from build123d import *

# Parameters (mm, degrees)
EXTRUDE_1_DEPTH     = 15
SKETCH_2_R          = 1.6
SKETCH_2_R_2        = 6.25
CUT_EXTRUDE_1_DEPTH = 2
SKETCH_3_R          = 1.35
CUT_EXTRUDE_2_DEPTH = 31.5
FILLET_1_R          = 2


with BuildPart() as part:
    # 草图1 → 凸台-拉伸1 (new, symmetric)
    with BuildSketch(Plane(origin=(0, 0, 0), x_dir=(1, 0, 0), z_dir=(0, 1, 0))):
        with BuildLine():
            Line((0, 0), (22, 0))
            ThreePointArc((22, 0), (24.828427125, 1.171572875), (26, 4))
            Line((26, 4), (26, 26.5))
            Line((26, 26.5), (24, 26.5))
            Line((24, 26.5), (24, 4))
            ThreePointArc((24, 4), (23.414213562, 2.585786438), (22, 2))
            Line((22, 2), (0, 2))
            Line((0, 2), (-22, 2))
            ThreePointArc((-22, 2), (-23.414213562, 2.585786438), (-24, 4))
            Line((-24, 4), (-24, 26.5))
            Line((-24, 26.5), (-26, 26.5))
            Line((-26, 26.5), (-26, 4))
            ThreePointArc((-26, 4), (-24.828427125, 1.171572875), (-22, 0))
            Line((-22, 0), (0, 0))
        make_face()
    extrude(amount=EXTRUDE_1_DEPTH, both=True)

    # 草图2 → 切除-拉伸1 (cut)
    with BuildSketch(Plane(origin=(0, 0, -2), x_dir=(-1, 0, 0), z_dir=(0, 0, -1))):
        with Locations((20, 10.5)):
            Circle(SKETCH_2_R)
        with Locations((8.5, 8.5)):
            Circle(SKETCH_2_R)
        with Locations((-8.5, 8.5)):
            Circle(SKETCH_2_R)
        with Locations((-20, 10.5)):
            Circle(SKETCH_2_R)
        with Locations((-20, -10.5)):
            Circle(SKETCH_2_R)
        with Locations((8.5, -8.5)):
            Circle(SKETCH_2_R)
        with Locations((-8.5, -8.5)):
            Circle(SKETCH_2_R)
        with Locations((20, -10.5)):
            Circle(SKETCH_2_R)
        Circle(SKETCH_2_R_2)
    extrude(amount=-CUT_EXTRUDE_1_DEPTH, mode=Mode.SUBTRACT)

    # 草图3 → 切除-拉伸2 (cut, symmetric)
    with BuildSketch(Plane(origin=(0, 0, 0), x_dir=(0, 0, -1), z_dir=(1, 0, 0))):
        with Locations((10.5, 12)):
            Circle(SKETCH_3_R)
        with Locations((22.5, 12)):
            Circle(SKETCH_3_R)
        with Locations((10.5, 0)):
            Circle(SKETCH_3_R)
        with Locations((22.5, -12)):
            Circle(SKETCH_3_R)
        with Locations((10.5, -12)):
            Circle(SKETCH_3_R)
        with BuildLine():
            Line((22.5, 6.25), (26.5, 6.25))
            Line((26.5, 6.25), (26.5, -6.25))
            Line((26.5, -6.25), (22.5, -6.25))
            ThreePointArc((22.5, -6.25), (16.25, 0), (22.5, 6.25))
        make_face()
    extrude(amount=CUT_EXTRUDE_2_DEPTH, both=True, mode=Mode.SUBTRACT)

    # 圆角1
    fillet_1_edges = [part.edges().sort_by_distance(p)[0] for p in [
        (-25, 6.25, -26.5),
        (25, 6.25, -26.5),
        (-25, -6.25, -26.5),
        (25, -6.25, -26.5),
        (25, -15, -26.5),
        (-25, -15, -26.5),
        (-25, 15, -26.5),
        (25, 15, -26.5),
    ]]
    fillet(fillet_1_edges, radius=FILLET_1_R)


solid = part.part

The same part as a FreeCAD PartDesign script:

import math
import FreeCAD as App
import Part
import Sketcher
from FreeCAD import Vector
Q = App.Units.Quantity


def edges_at(feature, points):
    """Names of the edges that pass closest to the given points."""
    edges = feature.Shape.Edges
    near = lambda p: min(range(len(edges)), key=lambda i: edges[i].distToShape(Part.Vertex(*p))[0])
    return sorted({f"Edge{near(p) + 1}" for p in points})

doc = App.newDocument("Part")
body = doc.addObject("PartDesign::Body", "Body")

# Sketch on XZ plane
sketch1 = doc.addObject("Sketcher::SketchObject", "Sketch")
body.addObject(sketch1)
sketch1.AttachmentSupport = (doc.XZ_Plane, [""])
sketch1.MapMode = "FlatFace"
sketch1.addGeometry(Part.ArcOfCircle(Part.Circle(Vector(22, -4, 0), Vector(0, 0, 1), 4), math.radians(0), math.radians(90)), False)
sketch1.addGeometry(Part.LineSegment(Vector(26, -4, 0), Vector(26, -26.5, 0)), False)
sketch1.addGeometry(Part.LineSegment(Vector(26, -26.5, 0), Vector(24, -26.5, 0)), False)
sketch1.addGeometry(Part.LineSegment(Vector(24, -26.5, 0), Vector(24, -4, 0)), False)
sketch1.addGeometry(Part.ArcOfCircle(Part.Circle(Vector(22, -4, 0), Vector(0, 0, 1), 2), math.radians(0), math.radians(90)), False)
sketch1.addGeometry(Part.LineSegment(Vector(22, -2, 0), Vector(-22, -2, 0)), False)
sketch1.addGeometry(Part.ArcOfCircle(Part.Circle(Vector(-22, -4, 0), Vector(0, 0, 1), 2), math.radians(90), math.radians(180)), False)
sketch1.addGeometry(Part.LineSegment(Vector(-24, -4, 0), Vector(-24, -26.5, 0)), False)
sketch1.addGeometry(Part.LineSegment(Vector(-24, -26.5, 0), Vector(-26, -26.5, 0)), False)
sketch1.addGeometry(Part.LineSegment(Vector(-26, -26.5, 0), Vector(-26, -4, 0)), False)
sketch1.addGeometry(Part.ArcOfCircle(Part.Circle(Vector(-22, -4, 0), Vector(0, 0, 1), 4), math.radians(90), math.radians(180)), False)
sketch1.addGeometry(Part.LineSegment(Vector(-22, 0, 0), Vector(22, 0, 0)), False)
sketch1.addConstraint(Sketcher.Constraint("Tangent", 0, 1, 1, 1))
sketch1.addConstraint(Sketcher.Constraint("Coincident", 1, 2, 2, 1))
sketch1.addConstraint(Sketcher.Constraint("Coincident", 2, 2, 3, 1))
sketch1.addConstraint(Sketcher.Constraint("Tangent", 3, 2, 4, 1))
sketch1.addConstraint(Sketcher.Constraint("Tangent", 4, 2, 5, 1))
sketch1.addConstraint(Sketcher.Constraint("Tangent", 5, 2, 6, 1))
sketch1.addConstraint(Sketcher.Constraint("Tangent", 6, 2, 7, 1))
sketch1.addConstraint(Sketcher.Constraint("Coincident", 7, 2, 8, 1))
sketch1.addConstraint(Sketcher.Constraint("Coincident", 8, 2, 9, 1))
sketch1.addConstraint(Sketcher.Constraint("Tangent", 9, 2, 10, 2))
sketch1.addConstraint(Sketcher.Constraint("Tangent", 10, 1, 11, 1))
sketch1.addConstraint(Sketcher.Constraint("Tangent", 11, 2, 0, 2))
sketch1.addConstraint(Sketcher.Constraint("Vertical", 1))
sketch1.addConstraint(Sketcher.Constraint("Horizontal", 2))
sketch1.addConstraint(Sketcher.Constraint("Vertical", 3))
sketch1.addConstraint(Sketcher.Constraint("Horizontal", 5))
sketch1.addConstraint(Sketcher.Constraint("Vertical", 7))
sketch1.addConstraint(Sketcher.Constraint("Horizontal", 8))
sketch1.addConstraint(Sketcher.Constraint("Vertical", 9))
sketch1.addConstraint(Sketcher.Constraint("Horizontal", 11))
sketch1.addConstraint(Sketcher.Constraint("Coincident", 4, 3, 0, 3))
sketch1.addConstraint(Sketcher.Constraint("Coincident", 10, 3, 6, 3))
sketch1.addConstraint(Sketcher.Constraint("Equal", 4, 6))
sketch1.addConstraint(Sketcher.Constraint("Symmetric", 10, 1, 11, 2, -1, 1))
sketch1.addConstraint(Sketcher.Constraint("Horizontal", 2, 2, 7, 2))
sketch1.addConstraint(Sketcher.Constraint("Radius", 0, Q("4 mm")))
sketch1.addConstraint(Sketcher.Constraint("Radius", 4, Q("2 mm")))
sketch1.addConstraint(Sketcher.Constraint("DistanceX", 5, 2, 5, 1, Q("44 mm")))
sketch1.addConstraint(Sketcher.Constraint("DistanceY", 1, 2, 1, 1, Q("22.5 mm")))
pad1 = doc.addObject("PartDesign::Pad", "Pad")
body.addObject(pad1)
pad1.Profile = sketch1
pad1.Length = 30
pad1.Midplane = True

# Sketch on XY plane
sketch2 = doc.addObject("Sketcher::SketchObject", "Sketch001")
body.addObject(sketch2)
sketch2.AttachmentSupport = (doc.XY_Plane, [""])
sketch2.MapMode = "FlatFace"
sketch2.AttachmentOffset = App.Placement(Vector(0, 0, -2), App.Rotation())
sketch2.addGeometry(Part.Circle(Vector(-20, 10.5, 0), Vector(0, 0, 1), 1.6), False)
sketch2.addGeometry(Part.Circle(Vector(-8.5, 8.5, 0), Vector(0, 0, 1), 1.6), False)
sketch2.addGeometry(Part.Circle(Vector(8.5, 8.5, 0), Vector(0, 0, 1), 1.6), False)
sketch2.addGeometry(Part.Circle(Vector(20, 10.5, 0), Vector(0, 0, 1), 1.6), False)
sketch2.addGeometry(Part.Circle(Vector(20, -10.5, 0), Vector(0, 0, 1), 1.6), False)
sketch2.addGeometry(Part.Circle(Vector(-8.5, -8.5, 0), Vector(0, 0, 1), 1.6), False)
sketch2.addGeometry(Part.Circle(Vector(8.5, -8.5, 0), Vector(0, 0, 1), 1.6), False)
sketch2.addGeometry(Part.Circle(Vector(-20, -10.5, 0), Vector(0, 0, 1), 1.6), False)
sketch2.addGeometry(Part.Circle(Vector(0, 0, 0), Vector(0, 0, 1), 6.2), False)
sketch2.addConstraint(Sketcher.Constraint("Coincident", 8, 3, -1, 1))
sketch2.addConstraint(Sketcher.Constraint("Equal", 0, 1))
sketch2.addConstraint(Sketcher.Constraint("Equal", 1, 2))
sketch2.addConstraint(Sketcher.Constraint("Equal", 2, 3))
sketch2.addConstraint(Sketcher.Constraint("Equal", 3, 4))
sketch2.addConstraint(Sketcher.Constraint("Equal", 4, 5))
sketch2.addConstraint(Sketcher.Constraint("Equal", 5, 6))
sketch2.addConstraint(Sketcher.Constraint("Equal", 6, 7))
sketch2.addConstraint(Sketcher.Constraint("Symmetric", 0, 3, 4, 3, -1, 1))
sketch2.addConstraint(Sketcher.Constraint("Symmetric", 2, 3, 5, 3, -1, 1))
sketch2.addConstraint(Sketcher.Constraint("Symmetric", 1, 3, 6, 3, -1, 1))
sketch2.addConstraint(Sketcher.Constraint("Symmetric", 3, 3, 7, 3, -1, 1))
sketch2.addConstraint(Sketcher.Constraint("Symmetric", 1, 3, 2, 3, -2))
sketch2.addConstraint(Sketcher.Constraint("Symmetric", 0, 3, 3, 3, -2))
sketch2.addConstraint(Sketcher.Constraint("Diameter", 0, Q("3.2 mm")))
sketch2.addConstraint(Sketcher.Constraint("Diameter", 8, Q("12.5 mm")))
sketch2.addConstraint(Sketcher.Constraint("DistanceX", 0, 3, -1, 1, Q("20 mm")))
sketch2.addConstraint(Sketcher.Constraint("DistanceY", 1, 3, 0, 3, Q("2 mm")))
sketch2.addConstraint(Sketcher.Constraint("DistanceX", 1, 3, 2, 3, Q("17 mm")))
sketch2.addConstraint(Sketcher.Constraint("DistanceY", 4, 3, 3, 3, Q("21 mm")))
pocket1 = doc.addObject("PartDesign::Pocket", "Pocket")
body.addObject(pocket1)
pocket1.Profile = sketch2
pocket1.Length = 2
pocket1.Reversed = True

# Sketch on YZ plane
sketch3 = doc.addObject("Sketcher::SketchObject", "Sketch002")
body.addObject(sketch3)
sketch3.AttachmentSupport = (doc.YZ_Plane, [""])
sketch3.MapMode = "FlatFace"
sketch3.addGeometry(Part.Circle(Vector(12, -10.5, 0), Vector(0, 0, 1), 1.4), False)
sketch3.addGeometry(Part.Circle(Vector(12, -22.5, 0), Vector(0, 0, 1), 1.4), False)
sketch3.addGeometry(Part.Circle(Vector(0, -10.5, 0), Vector(0, 0, 1), 1.4), False)
sketch3.addGeometry(Part.Circle(Vector(-12, -22.5, 0), Vector(0, 0, 1), 1.4), False)
sketch3.addGeometry(Part.Circle(Vector(-12, -10.5, 0), Vector(0, 0, 1), 1.4), False)
sketch3.addGeometry(Part.LineSegment(Vector(6.2, -26.5, 0), Vector(6.2, -22.5, 0)), False)
sketch3.addGeometry(Part.ArcOfCircle(Part.Circle(Vector(0, -22.5, 0), Vector(0, 0, 1), 6.2), math.radians(0), math.radians(180)), False)
sketch3.addGeometry(Part.LineSegment(Vector(-6.2, -22.5, 0), Vector(-6.2, -26.5, 0)), False)
sketch3.addGeometry(Part.LineSegment(Vector(-6.2, -26.5, 0), Vector(6.2, -26.5, 0)), False)
sketch3.addConstraint(Sketcher.Constraint("Tangent", 5, 2, 6, 1))
sketch3.addConstraint(Sketcher.Constraint("Tangent", 6, 2, 7, 1))
sketch3.addConstraint(Sketcher.Constraint("Coincident", 7, 2, 8, 1))
sketch3.addConstraint(Sketcher.Constraint("Coincident", 8, 2, 5, 1))
sketch3.addConstraint(Sketcher.Constraint("Vertical", 5))
sketch3.addConstraint(Sketcher.Constraint("Vertical", 7))
sketch3.addConstraint(Sketcher.Constraint("Horizontal", 8))
sketch3.addConstraint(Sketcher.Constraint("Equal", 0, 1))
sketch3.addConstraint(Sketcher.Constraint("Equal", 1, 2))
sketch3.addConstraint(Sketcher.Constraint("Equal", 2, 3))
sketch3.addConstraint(Sketcher.Constraint("Equal", 3, 4))
sketch3.addConstraint(Sketcher.Constraint("Symmetric", 1, 3, 3, 3, -2))
sketch3.addConstraint(Sketcher.Constraint("Symmetric", 0, 3, 4, 3, -2))
sketch3.addConstraint(Sketcher.Constraint("PointOnObject", 2, 3, -2))
sketch3.addConstraint(Sketcher.Constraint("PointOnObject", 6, 3, -2))
sketch3.addConstraint(Sketcher.Constraint("Horizontal", 0, 3, 2, 3))
sketch3.addConstraint(Sketcher.Constraint("Horizontal", 3, 3, 6, 3))
sketch3.addConstraint(Sketcher.Constraint("Vertical", 0, 3, 1, 3))
sketch3.addConstraint(Sketcher.Constraint("Diameter", 0, Q("2.7 mm")))
sketch3.addConstraint(Sketcher.Constraint("DistanceY", 5, 1, 5, 2, Q("4 mm")))
sketch3.addConstraint(Sketcher.Constraint("Radius", 6, Q("6.25 mm")))
sketch3.addConstraint(Sketcher.Constraint("DistanceX", -1, 1, 0, 3, Q("12 mm")))
sketch3.addConstraint(Sketcher.Constraint("DistanceY", 1, 3, 0, 3, Q("12 mm")))
sketch3.addConstraint(Sketcher.Constraint("DistanceY", 0, 3, -1, 1, Q("10.5 mm")))
pocket2 = doc.addObject("PartDesign::Pocket", "Pocket001")
body.addObject(pocket2)
pocket2.Profile = sketch3
pocket2.Length = 63
pocket2.Midplane = True
doc.recompute()

fillet = doc.addObject("PartDesign::Fillet", "Fillet")
body.addObject(fillet)
fillet.Base = (pocket2, edges_at(pocket2, [
    (-25, 6.25, -26.5),
    (25, 6.25, -26.5),
    (-25, -6.25, -26.5),
    (25, -6.25, -26.5),
    (25, -15, -26.5),
    (-25, -15, -26.5),
    (-25, 15, -26.5),
    (25, 15, -26.5),
]))
fillet.Radius = 2

doc.recompute()
